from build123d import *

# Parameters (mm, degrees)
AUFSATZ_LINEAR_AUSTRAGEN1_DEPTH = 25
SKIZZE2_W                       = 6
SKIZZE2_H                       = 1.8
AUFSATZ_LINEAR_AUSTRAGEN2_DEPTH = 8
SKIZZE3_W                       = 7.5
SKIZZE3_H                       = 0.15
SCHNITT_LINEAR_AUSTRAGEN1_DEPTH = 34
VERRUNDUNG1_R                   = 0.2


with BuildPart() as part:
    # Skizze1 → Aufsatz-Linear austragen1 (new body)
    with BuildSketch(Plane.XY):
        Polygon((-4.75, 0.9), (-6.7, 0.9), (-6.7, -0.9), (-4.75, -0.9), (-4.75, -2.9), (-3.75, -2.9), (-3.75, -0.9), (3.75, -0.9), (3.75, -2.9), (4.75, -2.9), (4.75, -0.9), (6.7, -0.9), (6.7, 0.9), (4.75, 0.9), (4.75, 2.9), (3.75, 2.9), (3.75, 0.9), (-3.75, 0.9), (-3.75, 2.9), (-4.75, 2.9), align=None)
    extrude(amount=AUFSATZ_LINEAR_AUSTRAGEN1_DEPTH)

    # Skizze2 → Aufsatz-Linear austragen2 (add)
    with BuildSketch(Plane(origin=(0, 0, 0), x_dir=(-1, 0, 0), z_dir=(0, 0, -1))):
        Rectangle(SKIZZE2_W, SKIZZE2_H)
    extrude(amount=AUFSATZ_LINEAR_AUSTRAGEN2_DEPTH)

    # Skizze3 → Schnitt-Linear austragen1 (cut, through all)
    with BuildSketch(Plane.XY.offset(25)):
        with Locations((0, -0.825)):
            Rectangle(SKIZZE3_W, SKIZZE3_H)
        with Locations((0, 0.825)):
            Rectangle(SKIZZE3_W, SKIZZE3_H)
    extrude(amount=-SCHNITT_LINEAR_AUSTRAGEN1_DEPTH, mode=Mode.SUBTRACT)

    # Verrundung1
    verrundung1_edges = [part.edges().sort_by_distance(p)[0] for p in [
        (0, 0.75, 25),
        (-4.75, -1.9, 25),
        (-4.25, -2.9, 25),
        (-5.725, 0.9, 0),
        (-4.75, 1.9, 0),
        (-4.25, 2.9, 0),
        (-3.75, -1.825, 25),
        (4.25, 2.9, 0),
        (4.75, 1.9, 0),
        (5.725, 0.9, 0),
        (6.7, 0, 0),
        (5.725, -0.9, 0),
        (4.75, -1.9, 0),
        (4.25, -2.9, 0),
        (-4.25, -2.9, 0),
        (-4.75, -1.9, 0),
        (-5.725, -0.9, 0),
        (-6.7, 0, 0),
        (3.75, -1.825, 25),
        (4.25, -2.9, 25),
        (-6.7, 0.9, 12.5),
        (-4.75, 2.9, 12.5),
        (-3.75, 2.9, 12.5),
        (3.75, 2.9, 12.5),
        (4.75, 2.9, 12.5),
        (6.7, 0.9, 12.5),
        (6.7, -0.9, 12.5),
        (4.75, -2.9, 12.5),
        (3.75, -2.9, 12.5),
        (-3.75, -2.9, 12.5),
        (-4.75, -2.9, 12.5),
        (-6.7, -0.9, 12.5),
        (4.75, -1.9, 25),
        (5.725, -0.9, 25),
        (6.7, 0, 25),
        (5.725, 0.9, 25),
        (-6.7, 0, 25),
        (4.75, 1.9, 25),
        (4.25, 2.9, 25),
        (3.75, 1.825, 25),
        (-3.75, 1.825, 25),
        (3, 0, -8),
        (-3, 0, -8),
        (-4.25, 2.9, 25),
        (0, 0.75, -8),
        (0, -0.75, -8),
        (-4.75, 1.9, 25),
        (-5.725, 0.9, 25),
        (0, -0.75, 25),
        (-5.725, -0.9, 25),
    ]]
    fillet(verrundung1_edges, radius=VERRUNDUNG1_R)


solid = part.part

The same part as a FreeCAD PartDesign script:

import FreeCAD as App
import Part
import Sketcher


def edges_at(feature, points):
    """Names of the edges that pass closest to the given points."""
    edges = feature.Shape.Edges
    near = lambda p: min(range(len(edges)), key=lambda i: edges[i].distToShape(Part.Vertex(*p))[0])
    return sorted({f"Edge{near(p) + 1}" for p in points})


def add_polygon(sketch, points):
    """Adds a closed chain of lines whose ends are joined by coincident constraints."""
    first, n = sketch.GeometryCount, len(points)
    for a, b in zip(points, points[1:] + points[:1]):
        sketch.addGeometry(Part.LineSegment(App.Vector(*a, 0), App.Vector(*b, 0)), False)
    for i in range(n):
        sketch.addConstraint(Sketcher.Constraint("Coincident", first + i, 2, first + (i + 1) % n, 1))

doc = App.newDocument("Part")
body = doc.addObject("PartDesign::Body", "Body")

sketch1 = body.newObject("Sketcher::SketchObject", "Sketch")
sketch1.AttachmentSupport = (doc.getObject("XY_Plane"), [""])
sketch1.MapMode = "FlatFace"
add_polygon(sketch1, [(-4.8, 0.9), (-6.7, 0.9), (-6.7, -0.9), (-4.8, -0.9), (-4.8, -2.9), (-3.8, -2.9), (-3.8, -0.9), (3.8, -0.9), (3.8, -2.9), (4.8, -2.9), (4.8, -0.9), (6.7, -0.9), (6.7, 0.9), (4.8, 0.9), (4.8, 2.9), (3.8, 2.9), (3.8, 0.9), (-3.8, 0.9), (-3.8, 2.9), (-4.8, 2.9)])
sketch1.addConstraint(Sketcher.Constraint("Horizontal", 0))
sketch1.addConstraint(Sketcher.Constraint("Vertical", 1))
sketch1.addConstraint(Sketcher.Constraint("Horizontal", 2))
sketch1.addConstraint(Sketcher.Constraint("Vertical", 3))
sketch1.addConstraint(Sketcher.Constraint("Horizontal", 4))
sketch1.addConstraint(Sketcher.Constraint("Vertical", 5))
sketch1.addConstraint(Sketcher.Constraint("Horizontal", 6))
sketch1.addConstraint(Sketcher.Constraint("Vertical", 7))
sketch1.addConstraint(Sketcher.Constraint("Horizontal", 8))
sketch1.addConstraint(Sketcher.Constraint("Vertical", 9))
sketch1.addConstraint(Sketcher.Constraint("Horizontal", 10))
sketch1.addConstraint(Sketcher.Constraint("Vertical", 11))
sketch1.addConstraint(Sketcher.Constraint("Horizontal", 12))
sketch1.addConstraint(Sketcher.Constraint("Vertical", 13))
sketch1.addConstraint(Sketcher.Constraint("Horizontal", 14))
sketch1.addConstraint(Sketcher.Constraint("Vertical", 15))
sketch1.addConstraint(Sketcher.Constraint("Horizontal", 16))
sketch1.addConstraint(Sketcher.Constraint("Vertical", 17))
sketch1.addConstraint(Sketcher.Constraint("Horizontal", 18))
sketch1.addConstraint(Sketcher.Constraint("Vertical", 19))
sketch1.addConstraint(Sketcher.Constraint("Symmetric", 0, 2, 10, 2, -1, 1))
sketch1.addConstraint(Sketcher.Constraint("Symmetric", 2, 2, 12, 2, -1, 1))
sketch1.addConstraint(Sketcher.Constraint("Symmetric", 4, 2, 14, 2, -1, 1))
sketch1.addConstraint(Sketcher.Constraint("Symmetric", 6, 2, 16, 2, -1, 1))
sketch1.addConstraint(Sketcher.Constraint("Symmetric", 8, 2, 18, 2, -1, 1))
sketch1.addConstraint(Sketcher.Constraint("Symmetric", 4, 2, 7, 2, -2))
sketch1.addConstraint(Sketcher.Constraint("Symmetric", 2, 2, 9, 2, -2))
sketch1.addConstraint(Sketcher.Constraint("Horizontal", 2, 2, 5, 2))
sketch1.addConstraint(Sketcher.Constraint("DistanceX", 4, 1, 4, 2, 1.0))
sketch1.addConstraint(Sketcher.Constraint("DistanceY", 3, 2, 3, 1, 2.0))
sketch1.addConstraint(Sketcher.Constraint("DistanceX", 6, 1, 6, 2, 7.5))
sketch1.addConstraint(Sketcher.Constraint("DistanceY", 1, 2, 1, 1, 1.8))
sketch1.addConstraint(Sketcher.Constraint("DistanceX", 0, 2, 0, 1, 1.95))
pad1 = body.newObject("PartDesign::Pad", "Pad")
pad1.Profile = sketch1
pad1.Length = 25

sketch2 = body.newObject("Sketcher::SketchObject", "Sketch001")
sketch2.AttachmentSupport = (doc.getObject("XY_Plane"), [""])
sketch2.MapMode = "FlatFace"
add_polygon(sketch2, [(3, 0.9), (3, -0.9), (-3, -0.9), (-3, 0.9)])
sketch2.addConstraint(Sketcher.Constraint("Vertical", 0))
sketch2.addConstraint(Sketcher.Constraint("Horizontal", 1))
sketch2.addConstraint(Sketcher.Constraint("Vertical", 2))
sketch2.addConstraint(Sketcher.Constraint("Horizontal", 3))
sketch2.addConstraint(Sketcher.Constraint("Symmetric", 0, 2, 2, 2, -1, 1))
sketch2.addConstraint(Sketcher.Constraint("DistanceX", 1, 2, 1, 1, 6.0))
sketch2.addConstraint(Sketcher.Constraint("DistanceY", 0, 2, 0, 1, 1.8))
pad2 = body.newObject("PartDesign::Pad", "Pad001")
pad2.Profile = sketch2
pad2.Length = 8
pad2.Reversed = True

sketch3 = body.newObject("Sketcher::SketchObject", "Sketch002")
sketch3.AttachmentSupport = (doc.getObject("XY_Plane"), [""])
sketch3.MapMode = "FlatFace"
sketch3.AttachmentOffset = App.Placement(App.Vector(0, 0, 25), App.Rotation())
add_polygon(sketch3, [(-3.75, -0.75), (-3.75, -0.9), (3.75, -0.9), (3.75, -0.75)])
add_polygon(sketch3, [(-3.75, 0.9), (-3.75, 0.75), (3.75, 0.75), (3.75, 0.9)])
sketch3.addConstraint(Sketcher.Constraint("Vertical", 0))
sketch3.addConstraint(Sketcher.Constraint("Horizontal", 1))
sketch3.addConstraint(Sketcher.Constraint("Vertical", 2))
sketch3.addConstraint(Sketcher.Constraint("Horizontal", 3))
sketch3.addConstraint(Sketcher.Constraint("Vertical", 4))
sketch3.addConstraint(Sketcher.Constraint("Horizontal", 5))
sketch3.addConstraint(Sketcher.Constraint("Vertical", 6))
sketch3.addConstraint(Sketcher.Constraint("Horizontal", 7))
sketch3.addConstraint(Sketcher.Constraint("Symmetric", 2, 2, 4, 2, -1, 1))
sketch3.addConstraint(Sketcher.Constraint("Symmetric", 0, 2, 6, 2, -1, 1))
sketch3.addConstraint(Sketcher.Constraint("Vertical", 3, 2, 4, 2))
sketch3.addConstraint(Sketcher.Constraint("DistanceX", 1, 1, 1, 2, 7.5))
sketch3.addConstraint(Sketcher.Constraint("DistanceY", 0, 2, 0, 1, 0.15))
sketch3.addConstraint(Sketcher.Constraint("DistanceY", 0, 2, -1, 1, 0.9))
pocket1 = body.newObject("PartDesign::Pocket", "Pocket")
pocket1.Profile = sketch3
pocket1.Type = "ThroughAll"
doc.recompute()

fillet = body.newObject("PartDesign::Fillet", "Fillet")
fillet.Base = (pocket1, edges_at(pocket1, [
    (0, 0.75, 25),
    (-4.75, -1.9, 25),
    (-4.25, -2.9, 25),
    (-5.725, 0.9, 0),
    (-4.75, 1.9, 0),
    (-4.25, 2.9, 0),
    (-3.75, -1.825, 25),
    (4.25, 2.9, 0),
    (4.75, 1.9, 0),
    (5.725, 0.9, 0),
    (6.7, 0, 0),
    (5.725, -0.9, 0),
    (4.75, -1.9, 0),
    (4.25, -2.9, 0),
    (-4.25, -2.9, 0),
    (-4.75, -1.9, 0),
    (-5.725, -0.9, 0),
    (-6.7, 0, 0),
    (3.75, -1.825, 25),
    (4.25, -2.9, 25),
    (-6.7, 0.9, 12.5),
    (-4.75, 2.9, 12.5),
    (-3.75, 2.9, 12.5),
    (3.75, 2.9, 12.5),
    (4.75, 2.9, 12.5),
    (6.7, 0.9, 12.5),
    (6.7, -0.9, 12.5),
    (4.75, -2.9, 12.5),
    (3.75, -2.9, 12.5),
    (-3.75, -2.9, 12.5),
    (-4.75, -2.9, 12.5),
    (-6.7, -0.9, 12.5),
    (4.75, -1.9, 25),
    (5.725, -0.9, 25),
    (6.7, 0, 25),
    (5.725, 0.9, 25),
    (-6.7, 0, 25),
    (4.75, 1.9, 25),
    (4.25, 2.9, 25),
    (3.75, 1.825, 25),
    (-3.75, 1.825, 25),
    (3, 0, -8),
    (-3, 0, -8),
    (-4.25, 2.9, 25),
    (0, 0.75, -8),
    (0, -0.75, -8),
    (-4.75, 1.9, 25),
    (-5.725, 0.9, 25),
    (0, -0.75, 25),
    (-5.725, -0.9, 25),
]))
fillet.Radius = 0.2

doc.recompute()
